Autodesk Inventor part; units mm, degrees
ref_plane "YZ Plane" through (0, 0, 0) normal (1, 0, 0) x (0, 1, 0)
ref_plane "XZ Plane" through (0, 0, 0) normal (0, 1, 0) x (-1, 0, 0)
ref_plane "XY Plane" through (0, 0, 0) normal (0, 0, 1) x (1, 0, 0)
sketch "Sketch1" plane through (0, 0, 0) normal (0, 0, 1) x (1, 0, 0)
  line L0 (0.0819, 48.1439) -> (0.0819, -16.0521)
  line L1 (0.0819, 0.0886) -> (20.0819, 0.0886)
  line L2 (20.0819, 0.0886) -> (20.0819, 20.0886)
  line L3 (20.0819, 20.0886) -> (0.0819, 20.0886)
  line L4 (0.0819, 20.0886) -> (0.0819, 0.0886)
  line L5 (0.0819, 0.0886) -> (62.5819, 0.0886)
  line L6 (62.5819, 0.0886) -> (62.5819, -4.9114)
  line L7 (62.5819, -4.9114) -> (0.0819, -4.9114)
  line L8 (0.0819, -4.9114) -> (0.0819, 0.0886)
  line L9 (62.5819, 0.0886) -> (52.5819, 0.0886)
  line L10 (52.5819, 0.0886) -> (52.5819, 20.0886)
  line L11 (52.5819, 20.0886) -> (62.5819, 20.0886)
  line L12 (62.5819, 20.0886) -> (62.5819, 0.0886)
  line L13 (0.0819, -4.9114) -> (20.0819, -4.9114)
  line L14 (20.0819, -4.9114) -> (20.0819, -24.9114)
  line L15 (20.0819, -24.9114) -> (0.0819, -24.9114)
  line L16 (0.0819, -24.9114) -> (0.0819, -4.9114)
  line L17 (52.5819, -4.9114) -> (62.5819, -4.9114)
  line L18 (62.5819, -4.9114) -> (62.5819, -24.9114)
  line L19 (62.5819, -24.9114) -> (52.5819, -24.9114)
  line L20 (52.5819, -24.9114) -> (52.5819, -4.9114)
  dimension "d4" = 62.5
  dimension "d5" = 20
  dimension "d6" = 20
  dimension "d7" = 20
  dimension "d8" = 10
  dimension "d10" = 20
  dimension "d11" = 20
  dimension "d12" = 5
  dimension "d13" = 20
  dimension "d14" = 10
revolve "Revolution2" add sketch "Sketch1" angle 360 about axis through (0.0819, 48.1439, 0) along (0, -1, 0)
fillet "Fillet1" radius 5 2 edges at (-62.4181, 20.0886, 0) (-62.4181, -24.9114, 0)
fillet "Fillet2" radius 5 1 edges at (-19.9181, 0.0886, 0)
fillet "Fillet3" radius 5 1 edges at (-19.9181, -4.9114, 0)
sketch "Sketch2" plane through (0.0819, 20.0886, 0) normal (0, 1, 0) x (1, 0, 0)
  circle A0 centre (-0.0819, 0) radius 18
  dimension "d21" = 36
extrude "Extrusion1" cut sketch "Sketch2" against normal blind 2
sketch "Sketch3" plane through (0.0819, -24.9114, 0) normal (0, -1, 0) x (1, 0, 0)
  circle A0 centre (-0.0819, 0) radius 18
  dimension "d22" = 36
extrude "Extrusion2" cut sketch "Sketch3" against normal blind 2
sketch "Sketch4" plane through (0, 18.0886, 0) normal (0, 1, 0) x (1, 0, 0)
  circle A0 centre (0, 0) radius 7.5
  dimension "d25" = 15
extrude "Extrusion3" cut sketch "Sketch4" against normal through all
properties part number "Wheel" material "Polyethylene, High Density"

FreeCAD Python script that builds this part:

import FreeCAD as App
import Part
import Sketcher
from FreeCAD import Vector
Q = App.Units.Quantity


def edges_at(feature, points):
    """Names of the edges that pass closest to the given points."""
    edges = feature.Shape.Edges
    near = lambda p: min(range(len(edges)), key=lambda i: edges[i].distToShape(Part.Vertex(*p))[0])
    return sorted({f"Edge{near(p) + 1}" for p in points})

doc = App.newDocument("Part")
params = doc.addObject("Spreadsheet::Sheet", "Params")
for row, (alias, value) in enumerate([
    ("sketch1_width", "20 mm"),
    ("sketch1_width2", "10 mm"),
    ("revolution_angle", "360 deg"),
    ("fillet_radius", "5 mm"),
    ("fillet2_radius", "5 mm"),
    ("fillet3_radius", "5 mm"),
    ("sketch2_diameter", "36 mm"),
    ("pocket1_length", "2 mm"),
    ("sketch3_diameter", "36 mm"),
    ("pocket2_length", "2 mm"),
    ("sketch4_diameter", "15 mm"),
], start=1):
    params.set(f"A{row}", alias)
    params.set(f"B{row}", "=" + value)
    params.setAlias(f"B{row}", alias)

body = doc.addObject("PartDesign::Body", "Body")

sketch1 = body.newObject("Sketcher::SketchObject", "Sketch")
sketch1.AttachmentSupport = (doc.getObject("XY_Plane"), [""])
sketch1.MapMode = "FlatFace"
sketch1.addGeometry(Part.LineSegment(Vector(20, 20, 0), Vector(0, 20, 0)), False)
sketch1.addGeometry(Part.LineSegment(Vector(0, 20, 0), Vector(0, -25, 0)), False)
sketch1.addGeometry(Part.LineSegment(Vector(0, -25, 0), Vector(20, -25, 0)), False)
sketch1.addGeometry(Part.LineSegment(Vector(20, -25, 0), Vector(20, -5, 0)), False)
sketch1.addGeometry(Part.LineSegment(Vector(20, -5, 0), Vector(53, -5, 0)), False)
sketch1.addGeometry(Part.LineSegment(Vector(53, -5, 0), Vector(53, -25, 0)), False)
sketch1.addGeometry(Part.LineSegment(Vector(53, -25, 0), Vector(63, -25, 0)), False)
sketch1.addGeometry(Part.LineSegment(Vector(63, -25, 0), Vector(63, 20, 0)), False)
sketch1.addGeometry(Part.LineSegment(Vector(63, 20, 0), Vector(53, 20, 0)), False)
sketch1.addGeometry(Part.LineSegment(Vector(53, 20, 0), Vector(53, 0, 0)), False)
sketch1.addGeometry(Part.LineSegment(Vector(53, 0, 0), Vector(20, 0, 0)), False)
sketch1.addGeometry(Part.LineSegment(Vector(20, 0, 0), Vector(20, 20, 0)), False)
sketch1.addGeometry(Part.LineSegment(Vector(0, 20, 0), Vector(0, -25, 0)), True)
sketch1.addConstraint(Sketcher.Constraint("Coincident", 0, 2, 1, 1))
sketch1.addConstraint(Sketcher.Constraint("Coincident", 1, 2, 2, 1))
sketch1.addConstraint(Sketcher.Constraint("Coincident", 2, 2, 3, 1))
sketch1.addConstraint(Sketcher.Constraint("Coincident", 3, 2, 4, 1))
sketch1.addConstraint(Sketcher.Constraint("Coincident", 4, 2, 5, 1))
sketch1.addConstraint(Sketcher.Constraint("Coincident", 5, 2, 6, 1))
sketch1.addConstraint(Sketcher.Constraint("Coincident", 6, 2, 7, 1))
sketch1.addConstraint(Sketcher.Constraint("Coincident", 7, 2, 8, 1))
sketch1.addConstraint(Sketcher.Constraint("Coincident", 8, 2, 9, 1))
sketch1.addConstraint(Sketcher.Constraint("Coincident", 9, 2, 10, 1))
sketch1.addConstraint(Sketcher.Constraint("Coincident", 10, 2, 11, 1))
sketch1.addConstraint(Sketcher.Constraint("Coincident", 11, 2, 0, 1))
sketch1.addConstraint(Sketcher.Constraint("Horizontal", 0))
sketch1.addConstraint(Sketcher.Constraint("Vertical", 1))
sketch1.addConstraint(Sketcher.Constraint("Horizontal", 2))
sketch1.addConstraint(Sketcher.Constraint("Vertical", 3))
sketch1.addConstraint(Sketcher.Constraint("Horizontal", 4))
sketch1.addConstraint(Sketcher.Constraint("Vertical", 5))
sketch1.addConstraint(Sketcher.Constraint("Horizontal", 6))
sketch1.addConstraint(Sketcher.Constraint("Vertical", 7))
sketch1.addConstraint(Sketcher.Constraint("Horizontal", 8))
sketch1.addConstraint(Sketcher.Constraint("Vertical", 9))
sketch1.addConstraint(Sketcher.Constraint("Horizontal", 10))
sketch1.addConstraint(Sketcher.Constraint("Vertical", 11))
sketch1.addConstraint(Sketcher.Constraint("Vertical", 12))
sketch1.addConstraint(Sketcher.Constraint("Coincident", 12, 1, 0, 2))
sketch1.addConstraint(Sketcher.Constraint("Horizontal", 2, 2, 5, 2))
sketch1.addConstraint(Sketcher.Constraint("Horizontal", 0, 2, 7, 2))
sketch1.addConstraint(Sketcher.Constraint("Horizontal", 6, 2, 12, 2))
sketch1.addConstraint(Sketcher.Constraint("Vertical", 5, 2, 8, 2))
sketch1.addConstraint(Sketcher.Constraint("Vertical", 3, 2, 10, 2))
sketch1.addConstraint(Sketcher.Constraint("Equal", 2, 3))
sketch1.addConstraint(Sketcher.Constraint("Equal", 5, 9))
sketch1.addConstraint(Sketcher.Constraint("DistanceX", 0, 2, 0, 1, Q("20 mm")))
sketch1.addConstraint(Sketcher.Constraint("DistanceX", 6, 1, 6, 2, Q("10 mm")))
sketch1.addConstraint(Sketcher.Constraint("DistanceY", 4, 2, 9, 2, Q("5 mm")))
sketch1.addConstraint(Sketcher.Constraint("DistanceX", 1, 2, 6, 2, Q("62.5 mm")))
sketch1.addConstraint(Sketcher.Constraint("DistanceX", -1, 1, 0, 2, Q("0.082 mm")))
sketch1.addConstraint(Sketcher.Constraint("DistanceY", -1, 1, 0, 2, Q("20.0886 mm")))
sketch1.setExpression("Constraints[33]", "Params.sketch1_width")
sketch1.setExpression("Constraints[34]", "Params.sketch1_width2")
revolution = body.newObject("PartDesign::Revolution", "Revolution")
revolution.Profile = sketch1
revolution.ReferenceAxis = (sketch1, ["Axis0"])
revolution.setExpression("Angle", "Params.revolution_angle")
doc.recompute()

fillet = body.newObject("PartDesign::Fillet", "Fillet")
fillet.Base = (revolution, edges_at(revolution, [(-62.418, 20.089, 0), (-62.418, -24.911, 0)]))
fillet.setExpression("Radius", "Params.fillet_radius")
doc.recompute()

fillet2 = body.newObject("PartDesign::Fillet", "Fillet001")
fillet2.Base = (fillet, edges_at(fillet, [(-19.918, 0.089, 0)]))
fillet2.setExpression("Radius", "Params.fillet2_radius")
doc.recompute()

fillet3 = body.newObject("PartDesign::Fillet", "Fillet002")
fillet3.Base = (fillet2, edges_at(fillet2, [(-19.918, -4.911, 0)]))
fillet3.setExpression("Radius", "Params.fillet3_radius")

sketch2 = body.newObject("Sketcher::SketchObject", "Sketch001")
sketch2.AttachmentSupport = (doc.getObject("XZ_Plane"), [""])
sketch2.MapMode = "FlatFace"
sketch2.AttachmentOffset = App.Placement(Vector(0, 0, -20.0886), App.Rotation())
sketch2.addGeometry(Part.Circle(Vector(0, 0, 0), Vector(0, 0, 1), 18), False)
sketch2.addConstraint(Sketcher.Constraint("Coincident", 0, 3, -1, 1))
sketch2.addConstraint(Sketcher.Constraint("Diameter", 0, Q("36 mm")))
sketch2.setExpression("Constraints[1]", "Params.sketch2_diameter")
pocket1 = body.newObject("PartDesign::Pocket", "Pocket")
pocket1.Profile = sketch2
pocket1.setExpression("Length", "Params.pocket1_length")
pocket1.Reversed = True

sketch3 = body.newObject("Sketcher::SketchObject", "Sketch002")
sketch3.AttachmentSupport = (doc.getObject("XZ_Plane"), [""])
sketch3.MapMode = "FlatFace"
sketch3.AttachmentOffset = App.Placement(Vector(0, 0, 24.9114), App.Rotation())
sketch3.addGeometry(Part.Circle(Vector(0, 0, 0), Vector(0, 0, 1), 18), False)
sketch3.addConstraint(Sketcher.Constraint("Coincident", 0, 3, -1, 1))
sketch3.addConstraint(Sketcher.Constraint("Diameter", 0, Q("36 mm")))
sketch3.setExpression("Constraints[1]", "Params.sketch3_diameter")
pocket2 = body.newObject("PartDesign::Pocket", "Pocket001")
pocket2.Profile = sketch3
pocket2.setExpression("Length", "Params.pocket2_length")

sketch4 = body.newObject("Sketcher::SketchObject", "Sketch003")
sketch4.AttachmentSupport = (doc.getObject("XZ_Plane"), [""])
sketch4.MapMode = "FlatFace"
sketch4.AttachmentOffset = App.Placement(Vector(0, 0, -18.0886), App.Rotation())
sketch4.addGeometry(Part.Circle(Vector(0, 0, 0), Vector(0, 0, 1), 8), False)
sketch4.addConstraint(Sketcher.Constraint("Coincident", 0, 3, -1, 1))
sketch4.addConstraint(Sketcher.Constraint("Diameter", 0, Q("15 mm")))
sketch4.setExpression("Constraints[1]", "Params.sketch4_diameter")
pocket3 = body.newObject("PartDesign::Pocket", "Pocket002")
pocket3.Profile = sketch4
pocket3.Type = "ThroughAll"
pocket3.Reversed = True

doc.recompute()
